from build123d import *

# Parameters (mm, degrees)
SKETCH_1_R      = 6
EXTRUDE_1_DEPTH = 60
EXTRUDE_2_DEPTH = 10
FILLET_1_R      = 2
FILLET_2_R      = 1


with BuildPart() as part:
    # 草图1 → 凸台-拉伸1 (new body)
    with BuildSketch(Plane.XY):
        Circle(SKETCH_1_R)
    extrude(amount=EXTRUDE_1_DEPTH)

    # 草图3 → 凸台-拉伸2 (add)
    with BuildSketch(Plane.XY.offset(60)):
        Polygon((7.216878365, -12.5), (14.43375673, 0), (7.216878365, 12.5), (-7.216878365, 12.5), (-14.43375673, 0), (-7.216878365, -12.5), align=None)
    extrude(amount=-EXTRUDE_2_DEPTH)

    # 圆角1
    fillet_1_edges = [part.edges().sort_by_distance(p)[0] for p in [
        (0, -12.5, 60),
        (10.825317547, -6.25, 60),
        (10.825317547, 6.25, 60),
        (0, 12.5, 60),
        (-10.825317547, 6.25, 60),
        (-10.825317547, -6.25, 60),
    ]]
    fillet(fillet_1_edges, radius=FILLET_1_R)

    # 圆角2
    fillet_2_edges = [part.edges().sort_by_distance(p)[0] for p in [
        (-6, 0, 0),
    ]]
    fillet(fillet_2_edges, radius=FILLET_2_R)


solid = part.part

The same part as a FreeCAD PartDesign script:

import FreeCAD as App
import Part
import Sketcher

V = App.Vector
Q = App.Units.Quantity


def edges_at(feature, points):
    """Names of the edges that pass closest to the given points."""
    edges = feature.Shape.Edges
    near = lambda p: min(range(len(edges)), key=lambda i: edges[i].distToShape(Part.Vertex(*p))[0])
    return sorted({f"Edge{near(p) + 1}" for p in points})


def add_polygon(sketch, points):
    """Adds a closed chain of lines whose ends are joined by coincident constraints."""
    first, n = sketch.GeometryCount, len(points)
    for a, b in zip(points, points[1:] + points[:1]):
        sketch.addGeometry(Part.LineSegment(App.Vector(*a, 0), App.Vector(*b, 0)), False)
    for i in range(n):
        sketch.addConstraint(Sketcher.Constraint("Coincident", first + i, 2, first + (i + 1) % n, 1))

doc = App.newDocument("Part")
params = doc.addObject("Spreadsheet::Sheet", "Params")
for row, (alias, value) in enumerate([
    ("sketch1_diameter", "12 mm"),
    ("pad1_length", "60 mm"),
    ("pad2_length", "10 mm"),
    ("fillet_radius", "2 mm"),
    ("fillet2_radius", "1 mm"),
], start=1):
    params.set(f"A{row}", alias)
    params.set(f"B{row}", "=" + value)
    params.setAlias(f"B{row}", alias)

body = doc.addObject("PartDesign::Body", "Body")

# Sketch on XY plane
sketch1 = body.newObject("Sketcher::SketchObject", "Sketch")
sketch1.AttachmentSupport = (doc.getObject("XY_Plane"), [""])
sketch1.MapMode = "FlatFace"
sketch1.addGeometry(Part.Circle(V(0, 0, 0), V(0, 0, 1), 6), False)
sketch1.addConstraint([
    Sketcher.Constraint("Coincident", 0, 3, -1, 1),
    Sketcher.Constraint("Diameter", 0, Q("12 mm")),
])
sketch1.setExpression("Constraints[1]", "Params.sketch1_diameter")
pad1 = body.newObject("PartDesign::Pad", "Pad")
pad1.Profile = sketch1
pad1.setExpression("Length", "Params.pad1_length")

# Sketch on XY plane
sketch2 = body.newObject("Sketcher::SketchObject", "Sketch001")
sketch2.AttachmentSupport = (doc.getObject("XY_Plane"), [""])
sketch2.MapMode = "FlatFace"
sketch2.AttachmentOffset = App.Placement(V(0, 0, 60), App.Rotation())
add_polygon(sketch2, [(7.216878, -12.5), (14.433757, 0), (7.216878, 12.5), (-7.216878, 12.5), (-14.433757, 0), (-7.216878, -12.5)])  # lines 0-5
sketch2.addConstraint([
    Sketcher.Constraint("Horizontal", 2),
    Sketcher.Constraint("Horizontal", 5),
    Sketcher.Constraint("Symmetric", 0, 2, 3, 2, -1, 1),
    Sketcher.Constraint("Symmetric", 1, 2, 4, 2, -1, 1),
    Sketcher.Constraint("PointOnObject", 0, 2, -1),
    Sketcher.Constraint("Parallel", 0, 3),
    Sketcher.Constraint("Vertical", 2, 2, 4, 2),
    Sketcher.Constraint("Angle", 0, Q("60 deg")),
    Sketcher.Constraint("DistanceY", 4, 2, 2, 2, Q("25 mm")),
    Sketcher.Constraint("DistanceX", 2, 2, 2, 1, Q("14.433757 mm")),
])
pad2 = body.newObject("PartDesign::Pad", "Pad001")
pad2.Profile = sketch2
pad2.setExpression("Length", "Params.pad2_length")
pad2.Reversed = True
doc.recompute()

fillet = body.newObject("PartDesign::Fillet", "Fillet")
fillet.Base = (pad2, edges_at(pad2, [
    (0, -12.5, 60),
    (10.825, -6.25, 60),
    (10.825, 6.25, 60),
    (0, 12.5, 60),
    (-10.825, 6.25, 60),
    (-10.825, -6.25, 60),
]))
fillet.setExpression("Radius", "Params.fillet_radius")
doc.recompute()

fillet2 = body.newObject("PartDesign::Fillet", "Fillet001")
fillet2.Base = (fillet, edges_at(fillet, [(-6, 0, 0)]))
fillet2.setExpression("Radius", "Params.fillet2_radius")

doc.recompute()
